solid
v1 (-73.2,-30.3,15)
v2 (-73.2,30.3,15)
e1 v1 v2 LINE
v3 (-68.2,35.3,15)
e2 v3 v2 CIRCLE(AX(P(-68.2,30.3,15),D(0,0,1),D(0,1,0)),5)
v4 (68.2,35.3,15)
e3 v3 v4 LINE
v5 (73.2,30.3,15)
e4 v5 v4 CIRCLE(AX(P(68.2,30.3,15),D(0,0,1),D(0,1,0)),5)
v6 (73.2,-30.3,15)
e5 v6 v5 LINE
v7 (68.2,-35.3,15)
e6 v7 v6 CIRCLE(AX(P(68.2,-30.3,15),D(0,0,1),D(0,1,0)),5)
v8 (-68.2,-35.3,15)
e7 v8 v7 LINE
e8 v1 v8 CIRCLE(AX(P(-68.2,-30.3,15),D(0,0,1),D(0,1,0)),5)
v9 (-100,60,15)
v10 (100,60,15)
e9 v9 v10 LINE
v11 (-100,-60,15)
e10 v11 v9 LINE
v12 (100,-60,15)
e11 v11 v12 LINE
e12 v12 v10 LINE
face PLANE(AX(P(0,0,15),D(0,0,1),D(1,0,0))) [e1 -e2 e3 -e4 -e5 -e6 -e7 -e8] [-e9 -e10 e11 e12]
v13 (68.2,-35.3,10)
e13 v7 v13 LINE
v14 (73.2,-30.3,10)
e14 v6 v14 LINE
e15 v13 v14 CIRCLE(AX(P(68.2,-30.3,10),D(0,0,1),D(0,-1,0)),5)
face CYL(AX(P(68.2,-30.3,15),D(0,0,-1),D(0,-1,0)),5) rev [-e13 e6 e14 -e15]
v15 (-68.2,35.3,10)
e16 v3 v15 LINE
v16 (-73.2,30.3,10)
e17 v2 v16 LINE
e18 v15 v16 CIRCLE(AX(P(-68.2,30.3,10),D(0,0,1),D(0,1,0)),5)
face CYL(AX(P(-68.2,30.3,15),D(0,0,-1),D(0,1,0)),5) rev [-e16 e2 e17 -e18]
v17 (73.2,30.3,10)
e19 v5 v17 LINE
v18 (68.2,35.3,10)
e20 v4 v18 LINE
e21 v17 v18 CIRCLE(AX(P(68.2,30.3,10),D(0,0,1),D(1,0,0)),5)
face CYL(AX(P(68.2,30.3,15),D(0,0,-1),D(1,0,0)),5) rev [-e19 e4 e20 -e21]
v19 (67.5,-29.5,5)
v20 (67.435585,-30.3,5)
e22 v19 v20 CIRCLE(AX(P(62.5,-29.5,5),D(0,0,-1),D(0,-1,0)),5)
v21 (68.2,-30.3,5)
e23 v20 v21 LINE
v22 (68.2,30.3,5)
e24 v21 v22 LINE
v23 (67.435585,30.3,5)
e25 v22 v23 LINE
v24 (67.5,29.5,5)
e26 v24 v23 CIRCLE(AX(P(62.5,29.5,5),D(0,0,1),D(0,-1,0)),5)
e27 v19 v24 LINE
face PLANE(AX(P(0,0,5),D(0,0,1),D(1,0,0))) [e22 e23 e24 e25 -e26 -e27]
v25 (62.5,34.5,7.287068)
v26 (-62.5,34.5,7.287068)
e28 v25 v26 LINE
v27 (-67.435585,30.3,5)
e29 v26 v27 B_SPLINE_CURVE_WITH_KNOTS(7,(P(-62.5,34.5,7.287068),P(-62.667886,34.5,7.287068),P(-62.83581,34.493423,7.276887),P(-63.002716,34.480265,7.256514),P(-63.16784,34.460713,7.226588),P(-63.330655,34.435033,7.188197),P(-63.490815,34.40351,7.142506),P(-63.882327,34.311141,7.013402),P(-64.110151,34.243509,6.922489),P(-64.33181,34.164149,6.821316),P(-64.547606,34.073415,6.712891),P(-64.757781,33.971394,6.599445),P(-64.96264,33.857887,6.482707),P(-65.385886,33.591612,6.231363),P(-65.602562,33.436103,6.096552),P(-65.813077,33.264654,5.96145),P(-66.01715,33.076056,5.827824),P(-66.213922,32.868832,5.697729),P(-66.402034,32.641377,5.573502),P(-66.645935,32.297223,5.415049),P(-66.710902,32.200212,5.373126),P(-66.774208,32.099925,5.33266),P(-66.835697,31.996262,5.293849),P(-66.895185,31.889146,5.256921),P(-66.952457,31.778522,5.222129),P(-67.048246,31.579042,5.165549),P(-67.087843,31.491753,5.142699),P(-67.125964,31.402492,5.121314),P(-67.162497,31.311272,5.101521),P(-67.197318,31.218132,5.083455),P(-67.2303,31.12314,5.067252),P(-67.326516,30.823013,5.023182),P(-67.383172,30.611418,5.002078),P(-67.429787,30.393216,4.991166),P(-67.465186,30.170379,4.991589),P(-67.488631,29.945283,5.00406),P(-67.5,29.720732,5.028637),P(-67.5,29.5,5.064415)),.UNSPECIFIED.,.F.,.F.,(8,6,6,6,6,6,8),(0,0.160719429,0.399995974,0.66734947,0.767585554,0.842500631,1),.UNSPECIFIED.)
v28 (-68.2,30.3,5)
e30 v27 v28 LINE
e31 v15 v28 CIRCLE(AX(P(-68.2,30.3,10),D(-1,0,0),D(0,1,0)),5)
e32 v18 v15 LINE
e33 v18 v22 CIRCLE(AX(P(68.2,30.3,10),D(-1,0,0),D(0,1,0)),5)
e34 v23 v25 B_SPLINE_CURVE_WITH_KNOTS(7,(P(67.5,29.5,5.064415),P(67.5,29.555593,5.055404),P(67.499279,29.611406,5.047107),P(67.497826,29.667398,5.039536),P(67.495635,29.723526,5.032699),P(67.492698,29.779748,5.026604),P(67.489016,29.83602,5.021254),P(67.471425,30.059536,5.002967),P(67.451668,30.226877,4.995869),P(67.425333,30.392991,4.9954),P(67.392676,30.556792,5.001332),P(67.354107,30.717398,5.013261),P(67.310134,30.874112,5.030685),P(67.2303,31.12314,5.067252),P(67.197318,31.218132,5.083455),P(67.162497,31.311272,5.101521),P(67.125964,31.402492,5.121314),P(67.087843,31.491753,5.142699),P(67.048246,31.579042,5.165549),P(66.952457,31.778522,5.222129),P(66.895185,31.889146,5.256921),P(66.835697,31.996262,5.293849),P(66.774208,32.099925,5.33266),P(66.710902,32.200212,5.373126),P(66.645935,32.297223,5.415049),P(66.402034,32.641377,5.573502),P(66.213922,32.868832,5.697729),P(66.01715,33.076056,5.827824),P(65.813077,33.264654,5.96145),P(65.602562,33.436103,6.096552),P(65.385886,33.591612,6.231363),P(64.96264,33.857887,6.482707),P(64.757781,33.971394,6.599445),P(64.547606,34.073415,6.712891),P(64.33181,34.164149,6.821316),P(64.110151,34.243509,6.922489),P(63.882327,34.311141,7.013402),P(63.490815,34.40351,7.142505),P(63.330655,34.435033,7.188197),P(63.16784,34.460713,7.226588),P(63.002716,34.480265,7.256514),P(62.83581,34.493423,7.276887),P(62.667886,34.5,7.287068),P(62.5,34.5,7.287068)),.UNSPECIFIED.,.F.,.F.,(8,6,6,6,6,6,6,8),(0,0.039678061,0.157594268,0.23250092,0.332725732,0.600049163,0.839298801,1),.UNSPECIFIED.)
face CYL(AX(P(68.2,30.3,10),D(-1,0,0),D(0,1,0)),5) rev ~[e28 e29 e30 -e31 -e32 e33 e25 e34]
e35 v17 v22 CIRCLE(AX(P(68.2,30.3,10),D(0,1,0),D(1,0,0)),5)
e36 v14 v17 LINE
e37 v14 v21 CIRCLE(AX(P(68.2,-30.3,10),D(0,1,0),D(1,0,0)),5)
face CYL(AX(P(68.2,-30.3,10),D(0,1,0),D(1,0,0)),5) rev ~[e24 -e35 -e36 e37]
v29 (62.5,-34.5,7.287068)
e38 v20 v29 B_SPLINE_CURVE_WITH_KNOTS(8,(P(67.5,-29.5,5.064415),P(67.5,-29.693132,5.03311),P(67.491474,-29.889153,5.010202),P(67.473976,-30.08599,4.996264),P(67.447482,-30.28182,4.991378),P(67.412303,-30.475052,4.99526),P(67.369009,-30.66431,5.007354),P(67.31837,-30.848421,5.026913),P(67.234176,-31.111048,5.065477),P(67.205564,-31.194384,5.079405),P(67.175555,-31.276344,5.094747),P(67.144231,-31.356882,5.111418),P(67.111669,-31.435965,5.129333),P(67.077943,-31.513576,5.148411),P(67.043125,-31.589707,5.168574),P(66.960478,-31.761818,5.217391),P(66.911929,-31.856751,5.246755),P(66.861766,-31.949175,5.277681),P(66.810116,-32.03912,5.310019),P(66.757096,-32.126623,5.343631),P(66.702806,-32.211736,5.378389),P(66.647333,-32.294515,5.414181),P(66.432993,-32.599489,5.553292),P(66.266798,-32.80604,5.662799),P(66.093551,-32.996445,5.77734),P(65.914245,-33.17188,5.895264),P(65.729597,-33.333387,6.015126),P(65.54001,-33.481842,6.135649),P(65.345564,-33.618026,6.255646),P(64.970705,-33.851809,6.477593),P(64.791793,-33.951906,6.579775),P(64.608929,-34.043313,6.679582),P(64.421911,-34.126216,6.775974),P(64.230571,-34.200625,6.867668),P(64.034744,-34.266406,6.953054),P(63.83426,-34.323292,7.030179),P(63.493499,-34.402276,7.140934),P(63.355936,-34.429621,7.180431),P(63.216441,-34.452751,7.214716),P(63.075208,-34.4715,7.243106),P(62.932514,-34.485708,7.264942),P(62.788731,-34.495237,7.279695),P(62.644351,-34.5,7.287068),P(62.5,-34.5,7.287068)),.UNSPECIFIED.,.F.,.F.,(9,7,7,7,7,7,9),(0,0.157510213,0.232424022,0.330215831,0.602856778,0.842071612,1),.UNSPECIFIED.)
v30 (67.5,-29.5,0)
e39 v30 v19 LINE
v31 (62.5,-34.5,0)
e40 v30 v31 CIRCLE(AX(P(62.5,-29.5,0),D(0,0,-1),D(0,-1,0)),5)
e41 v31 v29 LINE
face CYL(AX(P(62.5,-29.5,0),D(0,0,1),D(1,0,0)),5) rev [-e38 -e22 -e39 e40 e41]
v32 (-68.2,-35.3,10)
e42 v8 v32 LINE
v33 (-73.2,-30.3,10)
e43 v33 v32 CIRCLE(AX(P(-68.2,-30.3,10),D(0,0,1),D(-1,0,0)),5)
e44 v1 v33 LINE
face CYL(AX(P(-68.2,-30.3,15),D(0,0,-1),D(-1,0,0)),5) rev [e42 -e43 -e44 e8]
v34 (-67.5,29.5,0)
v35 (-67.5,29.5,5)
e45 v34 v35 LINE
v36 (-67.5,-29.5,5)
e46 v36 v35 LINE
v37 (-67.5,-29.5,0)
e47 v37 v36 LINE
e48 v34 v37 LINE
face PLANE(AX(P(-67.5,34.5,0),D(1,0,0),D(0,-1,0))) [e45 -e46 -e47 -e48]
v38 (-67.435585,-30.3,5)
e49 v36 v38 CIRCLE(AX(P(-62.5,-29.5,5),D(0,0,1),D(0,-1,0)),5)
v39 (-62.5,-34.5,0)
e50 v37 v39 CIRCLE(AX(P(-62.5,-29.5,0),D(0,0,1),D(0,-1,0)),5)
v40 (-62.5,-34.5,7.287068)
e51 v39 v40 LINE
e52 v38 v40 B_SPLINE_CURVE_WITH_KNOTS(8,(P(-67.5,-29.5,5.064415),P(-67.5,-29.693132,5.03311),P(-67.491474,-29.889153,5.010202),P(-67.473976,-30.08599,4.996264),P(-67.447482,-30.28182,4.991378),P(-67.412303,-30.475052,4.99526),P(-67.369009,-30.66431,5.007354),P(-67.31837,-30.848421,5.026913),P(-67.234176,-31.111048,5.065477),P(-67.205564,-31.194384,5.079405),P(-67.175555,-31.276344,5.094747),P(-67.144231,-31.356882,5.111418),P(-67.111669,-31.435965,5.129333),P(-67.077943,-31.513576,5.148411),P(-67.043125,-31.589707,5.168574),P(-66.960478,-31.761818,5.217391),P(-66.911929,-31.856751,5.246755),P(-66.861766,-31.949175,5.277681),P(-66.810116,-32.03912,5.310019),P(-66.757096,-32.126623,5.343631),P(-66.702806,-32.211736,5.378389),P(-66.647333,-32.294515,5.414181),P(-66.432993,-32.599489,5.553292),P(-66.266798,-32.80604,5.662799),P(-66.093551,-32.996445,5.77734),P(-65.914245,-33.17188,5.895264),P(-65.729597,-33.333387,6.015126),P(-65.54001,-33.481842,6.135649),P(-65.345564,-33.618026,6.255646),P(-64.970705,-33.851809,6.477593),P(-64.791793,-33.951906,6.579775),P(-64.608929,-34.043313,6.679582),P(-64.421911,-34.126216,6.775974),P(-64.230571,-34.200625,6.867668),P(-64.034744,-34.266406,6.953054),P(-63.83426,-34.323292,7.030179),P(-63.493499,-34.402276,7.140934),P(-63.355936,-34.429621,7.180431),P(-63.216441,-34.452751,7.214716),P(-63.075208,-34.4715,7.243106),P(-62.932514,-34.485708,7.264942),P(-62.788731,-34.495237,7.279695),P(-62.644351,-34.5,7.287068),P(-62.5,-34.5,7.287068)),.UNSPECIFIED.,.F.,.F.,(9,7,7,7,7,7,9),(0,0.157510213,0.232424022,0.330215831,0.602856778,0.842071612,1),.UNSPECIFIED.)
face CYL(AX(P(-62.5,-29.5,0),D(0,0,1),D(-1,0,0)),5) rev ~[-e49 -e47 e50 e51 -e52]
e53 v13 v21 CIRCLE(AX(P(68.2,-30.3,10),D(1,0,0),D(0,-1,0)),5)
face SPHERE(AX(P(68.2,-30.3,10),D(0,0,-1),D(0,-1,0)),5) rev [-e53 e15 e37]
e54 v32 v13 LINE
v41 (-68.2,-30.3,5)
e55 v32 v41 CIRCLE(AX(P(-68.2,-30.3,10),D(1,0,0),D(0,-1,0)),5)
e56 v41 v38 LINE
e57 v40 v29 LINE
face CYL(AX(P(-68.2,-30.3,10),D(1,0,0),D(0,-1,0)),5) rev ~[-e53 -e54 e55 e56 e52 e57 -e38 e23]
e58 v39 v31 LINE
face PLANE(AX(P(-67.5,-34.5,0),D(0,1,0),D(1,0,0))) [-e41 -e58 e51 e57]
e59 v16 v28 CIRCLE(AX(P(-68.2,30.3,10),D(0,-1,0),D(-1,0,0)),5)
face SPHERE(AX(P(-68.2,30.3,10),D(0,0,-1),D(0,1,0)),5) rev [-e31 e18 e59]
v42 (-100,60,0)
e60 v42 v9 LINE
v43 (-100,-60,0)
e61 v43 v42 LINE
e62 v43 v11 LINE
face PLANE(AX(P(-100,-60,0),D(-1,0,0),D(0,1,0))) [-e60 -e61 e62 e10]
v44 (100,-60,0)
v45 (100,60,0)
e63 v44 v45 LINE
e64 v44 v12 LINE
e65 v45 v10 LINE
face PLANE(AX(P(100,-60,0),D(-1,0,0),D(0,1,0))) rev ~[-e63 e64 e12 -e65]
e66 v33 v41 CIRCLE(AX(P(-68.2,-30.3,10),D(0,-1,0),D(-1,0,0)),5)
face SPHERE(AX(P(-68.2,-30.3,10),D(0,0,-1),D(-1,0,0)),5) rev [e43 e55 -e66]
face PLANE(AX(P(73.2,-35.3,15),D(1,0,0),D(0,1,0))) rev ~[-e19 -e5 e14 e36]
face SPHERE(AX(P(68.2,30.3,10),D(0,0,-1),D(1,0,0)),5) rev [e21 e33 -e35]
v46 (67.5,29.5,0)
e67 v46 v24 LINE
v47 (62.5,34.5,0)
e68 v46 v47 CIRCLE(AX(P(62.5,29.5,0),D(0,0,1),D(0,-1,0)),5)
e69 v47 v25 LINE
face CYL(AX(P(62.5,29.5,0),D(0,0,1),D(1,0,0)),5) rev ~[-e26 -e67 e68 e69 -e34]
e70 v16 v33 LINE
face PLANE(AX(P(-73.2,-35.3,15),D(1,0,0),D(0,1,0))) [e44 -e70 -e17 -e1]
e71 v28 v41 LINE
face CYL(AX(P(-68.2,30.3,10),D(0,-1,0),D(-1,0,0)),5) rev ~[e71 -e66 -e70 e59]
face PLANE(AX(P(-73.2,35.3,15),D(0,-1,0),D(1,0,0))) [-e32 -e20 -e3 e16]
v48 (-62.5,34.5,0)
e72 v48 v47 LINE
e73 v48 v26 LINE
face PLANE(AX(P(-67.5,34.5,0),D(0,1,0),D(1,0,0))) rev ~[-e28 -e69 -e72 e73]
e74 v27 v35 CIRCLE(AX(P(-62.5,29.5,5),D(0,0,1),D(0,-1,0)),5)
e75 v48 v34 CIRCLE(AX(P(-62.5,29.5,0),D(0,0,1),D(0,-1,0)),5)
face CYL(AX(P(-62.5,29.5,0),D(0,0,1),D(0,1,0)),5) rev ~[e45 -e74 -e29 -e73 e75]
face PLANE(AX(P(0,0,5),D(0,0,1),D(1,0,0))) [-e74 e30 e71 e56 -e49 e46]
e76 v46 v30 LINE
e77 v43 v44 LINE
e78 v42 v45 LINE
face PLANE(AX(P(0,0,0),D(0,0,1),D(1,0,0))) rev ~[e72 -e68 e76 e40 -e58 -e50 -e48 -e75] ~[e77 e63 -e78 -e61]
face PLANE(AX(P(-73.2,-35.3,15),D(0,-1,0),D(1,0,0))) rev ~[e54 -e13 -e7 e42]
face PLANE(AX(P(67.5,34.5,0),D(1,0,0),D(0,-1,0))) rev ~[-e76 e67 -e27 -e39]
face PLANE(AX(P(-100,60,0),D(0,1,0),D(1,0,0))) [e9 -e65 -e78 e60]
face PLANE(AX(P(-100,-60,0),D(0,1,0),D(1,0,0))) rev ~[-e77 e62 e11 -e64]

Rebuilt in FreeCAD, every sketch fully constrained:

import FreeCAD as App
import Part
import Sketcher

V = App.Vector


def edges_at(feature, points):
    """Names of the edges that pass closest to the given points."""
    edges = feature.Shape.Edges
    near = lambda p: min(range(len(edges)), key=lambda i: edges[i].distToShape(Part.Vertex(*p))[0])
    return sorted({f"Edge{near(p) + 1}" for p in points})


def add_polygon(sketch, points):
    """Adds a closed chain of lines whose ends are joined by coincident constraints."""
    first, n = sketch.GeometryCount, len(points)
    for a, b in zip(points, points[1:] + points[:1]):
        sketch.addGeometry(Part.LineSegment(App.Vector(*a, 0), App.Vector(*b, 0)), False)
    for i in range(n):
        sketch.addConstraint(Sketcher.Constraint("Coincident", first + i, 2, first + (i + 1) % n, 1))

doc = App.newDocument("Part")
body = doc.addObject("PartDesign::Body", "Body")

sketch1 = body.newObject("Sketcher::SketchObject", "Sketch")
sketch1.AttachmentSupport = (doc.getObject("XY_Plane"), [""])
sketch1.MapMode = "FlatFace"
add_polygon(sketch1, [(-100, 60), (-100, -60), (100, -60), (100, 60)])
sketch1.addConstraint([
    Sketcher.Constraint("Vertical", 0),
    Sketcher.Constraint("Horizontal", 1),
    Sketcher.Constraint("Vertical", 2),
    Sketcher.Constraint("Horizontal", 3),
    Sketcher.Constraint("Symmetric", 0, 2, 2, 2, -1, 1),
    Sketcher.Constraint("DistanceX", 1, 1, 1, 2, 200.0),
    Sketcher.Constraint("DistanceY", 0, 2, 0, 1, 120.0),
])
pad1 = body.newObject("PartDesign::Pad", "Pad")
pad1.Profile = sketch1
pad1.Length = 15

sketch2 = body.newObject("Sketcher::SketchObject", "Sketch001")
sketch2.AttachmentSupport = (doc.getObject("XY_Plane"), [""])
sketch2.MapMode = "FlatFace"
sketch2.AttachmentOffset = App.Placement(V(0, 0, 15), App.Rotation())
add_polygon(sketch2, [(-73, 35), (-73, -35), (73, -35), (73, 35)])
sketch2.addConstraint([
    Sketcher.Constraint("Vertical", 0),
    Sketcher.Constraint("Horizontal", 1),
    Sketcher.Constraint("Vertical", 2),
    Sketcher.Constraint("Horizontal", 3),
    Sketcher.Constraint("Symmetric", 0, 2, 2, 2, -1, 1),
    Sketcher.Constraint("DistanceX", 1, 1, 1, 2, 146.4),
    Sketcher.Constraint("DistanceY", 0, 2, 0, 1, 70.6),
])
pocket1 = body.newObject("PartDesign::Pocket", "Pocket")
pocket1.Profile = sketch2
pocket1.Length = 10
doc.recompute()

fillet = body.newObject("PartDesign::Fillet", "Fillet")
fillet.Base = (pocket1, edges_at(pocket1, [(-73.2, 35.3, 10)]))
fillet.Radius = 5
doc.recompute()

fillet2 = body.newObject("PartDesign::Fillet", "Fillet001")
fillet2.Base = (fillet, edges_at(fillet, [(-73.2, -35.3, 10)]))
fillet2.Radius = 5
doc.recompute()

fillet3 = body.newObject("PartDesign::Fillet", "Fillet002")
fillet3.Base = (fillet2, edges_at(fillet2, [(73.2, -35.3, 10)]))
fillet3.Radius = 5
doc.recompute()

fillet4 = body.newObject("PartDesign::Fillet", "Fillet003")
fillet4.Base = (fillet3, edges_at(fillet3, [(73.2, 35.3, 10)]))
fillet4.Radius = 5
doc.recompute()

fillet5 = body.newObject("PartDesign::Fillet", "Fillet004")
fillet5.Base = (fillet4, edges_at(fillet4, [
    (73.2, 0, 5),
    (0, 35.3, 5),
    (0, -35.3, 5),
    (-73.2, 0, 5),
]))
fillet5.Radius = 5

sketch3 = body.newObject("Sketcher::SketchObject", "Sketch002")
sketch3.AttachmentSupport = (doc.getObject("XY_Plane"), [""])
sketch3.MapMode = "FlatFace"
add_polygon(sketch3, [(-68, -34), (-68, 34), (68, 34), (68, -34)])
sketch3.addConstraint([
    Sketcher.Constraint("Vertical", 0),
    Sketcher.Constraint("Horizontal", 1),
    Sketcher.Constraint("Vertical", 2),
    Sketcher.Constraint("Horizontal", 3),
    Sketcher.Constraint("Symmetric", 0, 2, 2, 2, -1, 1),
    Sketcher.Constraint("DistanceX", 1, 1, 1, 2, 135.0),
    Sketcher.Constraint("DistanceY", 0, 1, 0, 2, 69.0),
])
pocket2 = body.newObject("PartDesign::Pocket", "Pocket001")
pocket2.Profile = sketch3
pocket2.Length = 25
pocket2.Reversed = True
doc.recompute()

fillet6 = body.newObject("PartDesign::Fillet", "Fillet005")
fillet6.Base = (pocket2, edges_at(pocket2, [(67.5, -34.5, 3.644)]))
fillet6.Radius = 5
doc.recompute()

fillet7 = body.newObject("PartDesign::Fillet", "Fillet006")
fillet7.Base = (fillet6, edges_at(fillet6, [(67.5, 34.5, 3.644)]))
fillet7.Radius = 5
doc.recompute()

fillet8 = body.newObject("PartDesign::Fillet", "Fillet007")
fillet8.Base = (fillet7, edges_at(fillet7, [(-67.5, 34.5, 3.644)]))
fillet8.Radius = 5
doc.recompute()

fillet9 = body.newObject("PartDesign::Fillet", "Fillet008")
fillet9.Base = (fillet8, edges_at(fillet8, [(-67.5, -34.5, 3.644)]))
fillet9.Radius = 5

doc.recompute()
